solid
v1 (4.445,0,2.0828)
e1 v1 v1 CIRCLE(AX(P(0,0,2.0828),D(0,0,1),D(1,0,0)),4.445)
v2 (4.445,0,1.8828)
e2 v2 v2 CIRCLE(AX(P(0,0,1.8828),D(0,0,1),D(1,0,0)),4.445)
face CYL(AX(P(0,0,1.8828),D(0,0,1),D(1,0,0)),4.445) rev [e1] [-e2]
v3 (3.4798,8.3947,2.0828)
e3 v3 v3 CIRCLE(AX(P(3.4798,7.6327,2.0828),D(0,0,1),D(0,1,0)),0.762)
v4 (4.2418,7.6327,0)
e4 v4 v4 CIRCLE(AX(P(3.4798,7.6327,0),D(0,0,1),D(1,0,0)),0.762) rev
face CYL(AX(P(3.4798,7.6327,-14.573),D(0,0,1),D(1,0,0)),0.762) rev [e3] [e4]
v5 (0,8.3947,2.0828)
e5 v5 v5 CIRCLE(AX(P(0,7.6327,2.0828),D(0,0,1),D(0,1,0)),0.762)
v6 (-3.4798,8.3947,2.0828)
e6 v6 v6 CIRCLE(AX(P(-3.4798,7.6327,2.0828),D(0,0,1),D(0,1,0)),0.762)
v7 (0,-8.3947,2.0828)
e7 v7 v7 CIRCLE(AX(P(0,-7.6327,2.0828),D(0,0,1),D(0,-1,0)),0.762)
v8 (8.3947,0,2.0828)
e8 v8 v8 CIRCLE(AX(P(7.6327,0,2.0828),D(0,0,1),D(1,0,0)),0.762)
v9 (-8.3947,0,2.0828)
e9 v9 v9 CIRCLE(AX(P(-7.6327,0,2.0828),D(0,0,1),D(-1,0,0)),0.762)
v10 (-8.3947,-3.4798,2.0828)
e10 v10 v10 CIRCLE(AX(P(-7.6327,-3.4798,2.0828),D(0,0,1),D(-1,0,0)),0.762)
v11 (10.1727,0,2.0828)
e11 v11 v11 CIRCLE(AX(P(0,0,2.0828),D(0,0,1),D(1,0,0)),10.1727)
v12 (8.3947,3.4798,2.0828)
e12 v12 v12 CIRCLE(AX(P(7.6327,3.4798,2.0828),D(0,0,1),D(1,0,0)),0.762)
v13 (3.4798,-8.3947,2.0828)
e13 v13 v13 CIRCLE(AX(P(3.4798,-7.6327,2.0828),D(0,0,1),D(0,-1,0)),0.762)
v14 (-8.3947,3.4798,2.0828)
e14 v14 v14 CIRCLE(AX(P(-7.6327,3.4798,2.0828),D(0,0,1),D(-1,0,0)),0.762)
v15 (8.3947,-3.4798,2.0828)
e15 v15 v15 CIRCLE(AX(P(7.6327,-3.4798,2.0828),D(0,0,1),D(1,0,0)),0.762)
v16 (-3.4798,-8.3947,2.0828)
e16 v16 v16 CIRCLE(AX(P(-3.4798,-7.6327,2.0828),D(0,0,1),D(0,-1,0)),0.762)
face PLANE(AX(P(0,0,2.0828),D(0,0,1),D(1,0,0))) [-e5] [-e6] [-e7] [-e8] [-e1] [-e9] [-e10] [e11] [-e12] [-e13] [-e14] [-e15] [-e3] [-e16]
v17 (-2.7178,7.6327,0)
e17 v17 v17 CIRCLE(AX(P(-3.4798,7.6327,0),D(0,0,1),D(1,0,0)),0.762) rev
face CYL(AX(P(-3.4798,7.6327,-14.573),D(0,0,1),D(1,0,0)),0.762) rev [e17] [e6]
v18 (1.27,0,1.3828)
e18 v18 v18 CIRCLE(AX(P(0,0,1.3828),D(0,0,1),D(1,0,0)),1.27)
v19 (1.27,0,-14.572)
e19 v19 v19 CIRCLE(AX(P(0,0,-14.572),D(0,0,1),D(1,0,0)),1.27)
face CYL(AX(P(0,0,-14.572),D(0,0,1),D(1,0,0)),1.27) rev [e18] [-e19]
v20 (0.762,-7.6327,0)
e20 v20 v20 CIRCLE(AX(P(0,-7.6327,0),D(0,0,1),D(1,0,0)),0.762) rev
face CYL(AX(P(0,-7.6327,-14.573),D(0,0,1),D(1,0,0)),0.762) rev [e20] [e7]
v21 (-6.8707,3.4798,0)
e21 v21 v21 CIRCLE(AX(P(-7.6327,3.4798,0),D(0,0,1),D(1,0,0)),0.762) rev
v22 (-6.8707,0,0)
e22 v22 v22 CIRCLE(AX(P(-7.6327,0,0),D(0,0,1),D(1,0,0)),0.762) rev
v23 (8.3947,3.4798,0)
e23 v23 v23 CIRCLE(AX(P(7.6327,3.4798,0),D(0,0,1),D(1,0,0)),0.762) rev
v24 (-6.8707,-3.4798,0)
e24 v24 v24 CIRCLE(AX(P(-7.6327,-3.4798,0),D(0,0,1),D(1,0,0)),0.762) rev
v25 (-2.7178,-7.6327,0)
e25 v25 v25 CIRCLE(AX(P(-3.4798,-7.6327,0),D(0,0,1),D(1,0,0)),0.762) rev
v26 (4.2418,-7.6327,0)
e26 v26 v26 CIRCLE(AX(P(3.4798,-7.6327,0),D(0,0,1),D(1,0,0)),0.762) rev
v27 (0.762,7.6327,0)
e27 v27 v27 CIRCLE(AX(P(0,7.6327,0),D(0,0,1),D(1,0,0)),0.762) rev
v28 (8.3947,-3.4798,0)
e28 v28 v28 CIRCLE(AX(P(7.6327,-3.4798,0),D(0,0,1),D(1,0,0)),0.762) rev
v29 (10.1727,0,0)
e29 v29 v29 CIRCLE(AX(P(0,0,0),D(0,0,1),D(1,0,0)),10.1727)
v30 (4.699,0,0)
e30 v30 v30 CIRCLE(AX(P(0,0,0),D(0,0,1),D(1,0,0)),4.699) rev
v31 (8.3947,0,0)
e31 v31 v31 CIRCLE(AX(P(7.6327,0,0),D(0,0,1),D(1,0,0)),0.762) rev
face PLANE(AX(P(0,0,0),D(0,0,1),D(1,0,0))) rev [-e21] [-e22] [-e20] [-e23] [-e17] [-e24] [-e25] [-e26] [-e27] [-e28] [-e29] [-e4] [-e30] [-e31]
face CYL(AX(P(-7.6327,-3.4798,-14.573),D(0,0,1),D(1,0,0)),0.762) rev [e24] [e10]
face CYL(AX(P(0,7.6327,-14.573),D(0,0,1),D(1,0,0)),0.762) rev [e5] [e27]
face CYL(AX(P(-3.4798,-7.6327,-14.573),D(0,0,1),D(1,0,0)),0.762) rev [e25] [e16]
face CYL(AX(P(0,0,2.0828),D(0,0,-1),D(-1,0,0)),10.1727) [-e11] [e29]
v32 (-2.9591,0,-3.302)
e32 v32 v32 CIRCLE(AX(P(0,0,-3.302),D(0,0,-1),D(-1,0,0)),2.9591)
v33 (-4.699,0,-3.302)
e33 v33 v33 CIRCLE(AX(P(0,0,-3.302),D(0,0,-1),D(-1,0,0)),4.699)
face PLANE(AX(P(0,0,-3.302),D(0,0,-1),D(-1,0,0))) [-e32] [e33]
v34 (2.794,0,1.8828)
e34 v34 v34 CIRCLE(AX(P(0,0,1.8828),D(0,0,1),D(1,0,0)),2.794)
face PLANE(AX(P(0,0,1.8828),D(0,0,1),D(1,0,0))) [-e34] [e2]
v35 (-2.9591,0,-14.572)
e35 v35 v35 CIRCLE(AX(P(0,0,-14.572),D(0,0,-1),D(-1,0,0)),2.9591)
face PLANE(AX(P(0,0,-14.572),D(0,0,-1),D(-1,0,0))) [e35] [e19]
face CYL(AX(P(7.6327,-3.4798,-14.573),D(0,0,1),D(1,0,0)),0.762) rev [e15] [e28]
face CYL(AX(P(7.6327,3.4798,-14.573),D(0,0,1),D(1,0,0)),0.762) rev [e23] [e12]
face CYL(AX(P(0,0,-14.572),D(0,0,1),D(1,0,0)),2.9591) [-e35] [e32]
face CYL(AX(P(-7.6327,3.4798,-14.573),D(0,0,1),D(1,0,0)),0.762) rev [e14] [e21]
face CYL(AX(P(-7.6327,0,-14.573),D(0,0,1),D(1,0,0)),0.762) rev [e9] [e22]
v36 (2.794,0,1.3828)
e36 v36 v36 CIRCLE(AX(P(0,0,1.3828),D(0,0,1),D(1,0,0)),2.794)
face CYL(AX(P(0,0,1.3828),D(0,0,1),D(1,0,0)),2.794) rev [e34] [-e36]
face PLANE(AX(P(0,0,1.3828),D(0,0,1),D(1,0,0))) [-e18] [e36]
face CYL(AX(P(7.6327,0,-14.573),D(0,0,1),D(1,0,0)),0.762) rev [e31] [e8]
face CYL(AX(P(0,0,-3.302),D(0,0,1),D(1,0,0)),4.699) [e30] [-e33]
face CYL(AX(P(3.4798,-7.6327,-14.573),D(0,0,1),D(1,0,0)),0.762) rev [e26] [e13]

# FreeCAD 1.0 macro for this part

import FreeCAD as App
import Part
import Sketcher
Q = App.Units.Quantity

doc = App.newDocument("Part")
body = doc.addObject("PartDesign::Body", "Body")

sketch1 = body.newObject("Sketcher::SketchObject", "Sketch")
sketch1.AttachmentSupport = (doc.getObject("XY_Plane"), [""])
sketch1.MapMode = "FlatFace"
sketch1.addGeometry(Part.Circle(App.Vector(0, 0, 0), App.Vector(0, 0, 1), 10), False)
sketch1.addConstraint([
    Sketcher.Constraint("Coincident", 0, 3, -1, 1),
    Sketcher.Constraint("Diameter", 0, Q("0.801 in")),
])
pad1 = body.newObject("PartDesign::Pad", "Pad")
pad1.Profile = sketch1
pad1.Length = Q("0.082 in")

sketch2 = body.newObject("Sketcher::SketchObject", "Sketch001")
sketch2.AttachmentSupport = (doc.getObject("XY_Plane"), [""])
sketch2.MapMode = "FlatFace"
sketch2.addGeometry(Part.Circle(App.Vector(0, 0, 0), App.Vector(0, 0, 1), 4.7), False)
sketch2.addConstraint([
    Sketcher.Constraint("Coincident", 0, 3, -1, 1),
    Sketcher.Constraint("Diameter", 0, Q("0.37 in")),
])
pad2 = body.newObject("PartDesign::Pad", "Pad001")
pad2.Profile = sketch2
pad2.Length = Q("0.13 in")
pad2.Reversed = True

sketch3 = body.newObject("Sketcher::SketchObject", "Sketch002")
sketch3.AttachmentSupport = (doc.getObject("XY_Plane"), [""])
sketch3.MapMode = "FlatFace"
sketch3.AttachmentOffset = App.Placement(App.Vector(0, 0, -0.13 * 25.4), App.Rotation())
sketch3.addGeometry(Part.Circle(App.Vector(0, 0, 0), App.Vector(0, 0, 1), 3), False)
sketch3.addConstraint([
    Sketcher.Constraint("Coincident", 0, 3, -1, 1),
    Sketcher.Constraint("Diameter", 0, Q("0.233 in")),
])
pad3 = body.newObject("PartDesign::Pad", "Pad002")
pad3.Profile = sketch3
pad3.Length = 11.27
pad3.Reversed = True

sketch4 = body.newObject("Sketcher::SketchObject", "Sketch003")
sketch4.AttachmentSupport = (doc.getObject("XY_Plane"), [""])
sketch4.MapMode = "FlatFace"
sketch4.AttachmentOffset = App.Placement(App.Vector(0, 0, 0.082 * 25.4), App.Rotation())
sketch4.addGeometry(Part.Circle(App.Vector(0, 0, 0), App.Vector(0, 0, 1), 4.4), False)
sketch4.addConstraint([
    Sketcher.Constraint("Coincident", 0, 3, -1, 1),
    Sketcher.Constraint("Diameter", 0, Q("0.35 in")),
])
pocket1 = body.newObject("PartDesign::Pocket", "Pocket")
pocket1.Profile = sketch4
pocket1.Length = 0.2

sketch5 = body.newObject("Sketcher::SketchObject", "Sketch004")
sketch5.AttachmentSupport = (doc.getObject("XY_Plane"), [""])
sketch5.MapMode = "FlatFace"
sketch5.AttachmentOffset = App.Placement(App.Vector(0, 0, 1.8828), App.Rotation())
sketch5.addGeometry(Part.Circle(App.Vector(0, 0, 0), App.Vector(0, 0, 1), 2.8), False)
sketch5.addConstraint([
    Sketcher.Constraint("Coincident", 0, 3, -1, 1),
    Sketcher.Constraint("Diameter", 0, Q("0.22 in")),
])
pocket2 = body.newObject("PartDesign::Pocket", "Pocket001")
pocket2.Profile = sketch5
pocket2.Length = 0.5

sketch6 = body.newObject("Sketcher::SketchObject", "Sketch005")
sketch6.AttachmentSupport = (doc.getObject("XY_Plane"), [""])
sketch6.MapMode = "FlatFace"
sketch6.AttachmentOffset = App.Placement(App.Vector(0, 0, 1.3828), App.Rotation())
sketch6.addGeometry(Part.Circle(App.Vector(0, 0, 0), App.Vector(0, 0, 1), 1.3), False)
sketch6.addConstraint([
    Sketcher.Constraint("Coincident", 0, 3, -1, 1),
    Sketcher.Constraint("Diameter", 0, Q("0.1 in")),
])
pocket3 = body.newObject("PartDesign::Pocket", "Pocket002")
pocket3.Profile = sketch6
pocket3.Type = "ThroughAll"

sketch7 = body.newObject("Sketcher::SketchObject", "Sketch006")
sketch7.AttachmentSupport = (doc.getObject("XY_Plane"), [""])
sketch7.MapMode = "FlatFace"
sketch7.AttachmentOffset = App.Placement(App.Vector(0, 0, 0.082 * 25.4), App.Rotation())
sketch7.addGeometry([
    Part.Circle(App.Vector(7.6, 0, 0), App.Vector(0, 0, 1), 0.8),
    Part.Circle(App.Vector(7.6, -3.5, 0), App.Vector(0, 0, 1), 0.8),
    Part.Circle(App.Vector(7.6, 3.5, 0), App.Vector(0, 0, 1), 0.8),
], False)
sketch7.addConstraint([
    Sketcher.Constraint("Equal", 0, 1),
    Sketcher.Constraint("Equal", 1, 2),
    Sketcher.Constraint("Symmetric", 1, 3, 2, 3, -1),
    Sketcher.Constraint("PointOnObject", 0, 3, -1),
    Sketcher.Constraint("Vertical", 0, 3, 1, 3),
    Sketcher.Constraint("Diameter", 0, Q("0.06 in")),
    Sketcher.Constraint("DistanceY", 1, 3, -1, 1, Q("0.137 in")),
    Sketcher.Constraint("DistanceX", -1, 1, 0, 3, Q("0.3005 in")),
])
pocket4 = body.newObject("PartDesign::Pocket", "Pocket003")
pocket4.Profile = sketch7
pocket4.Length = Q("0.082 in")
doc.recompute()

polarpattern = body.newObject("PartDesign::PolarPattern", "PolarPattern")
polarpattern.Originals = [pocket4]
polarpattern.Axis = (doc.getObject("Z_Axis"), [""])
polarpattern.Angle = 360
polarpattern.Occurrences = 4
body.Tip = polarpattern

doc.recompute()
